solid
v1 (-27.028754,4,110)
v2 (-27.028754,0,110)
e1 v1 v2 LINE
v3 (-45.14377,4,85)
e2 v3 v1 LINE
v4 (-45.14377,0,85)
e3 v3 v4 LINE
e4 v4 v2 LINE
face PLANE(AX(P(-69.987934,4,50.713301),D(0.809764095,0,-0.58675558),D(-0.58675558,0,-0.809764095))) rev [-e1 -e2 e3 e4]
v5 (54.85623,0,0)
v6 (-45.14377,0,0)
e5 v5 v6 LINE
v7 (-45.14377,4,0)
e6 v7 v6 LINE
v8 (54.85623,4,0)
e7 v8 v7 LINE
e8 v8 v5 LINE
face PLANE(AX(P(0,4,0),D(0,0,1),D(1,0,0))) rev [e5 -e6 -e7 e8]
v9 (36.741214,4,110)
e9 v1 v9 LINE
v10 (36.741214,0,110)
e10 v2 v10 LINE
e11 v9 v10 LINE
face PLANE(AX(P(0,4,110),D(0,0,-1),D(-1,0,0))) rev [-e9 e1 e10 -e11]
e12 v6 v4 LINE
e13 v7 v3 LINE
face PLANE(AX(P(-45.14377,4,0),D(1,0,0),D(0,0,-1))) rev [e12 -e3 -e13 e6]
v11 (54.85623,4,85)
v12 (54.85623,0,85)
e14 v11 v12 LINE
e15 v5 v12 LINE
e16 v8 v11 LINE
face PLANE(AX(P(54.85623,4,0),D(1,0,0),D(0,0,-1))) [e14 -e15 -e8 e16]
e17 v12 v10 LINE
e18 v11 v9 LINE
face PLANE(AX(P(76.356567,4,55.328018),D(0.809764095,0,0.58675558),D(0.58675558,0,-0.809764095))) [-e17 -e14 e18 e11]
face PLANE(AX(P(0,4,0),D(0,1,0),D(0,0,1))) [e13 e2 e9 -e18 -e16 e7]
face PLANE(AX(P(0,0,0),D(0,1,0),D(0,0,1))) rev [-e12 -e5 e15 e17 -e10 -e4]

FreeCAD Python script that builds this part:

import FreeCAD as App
import Part
import Sketcher

V = App.Vector
Q = App.Units.Quantity

doc = App.newDocument("Part")
params = doc.addObject("Spreadsheet::Sheet", "Params")
for row, (alias, value) in enumerate([
    ("sketch1_width", "100 mm"),
    ("sketch1_height", "85 mm"),
    ("pad1_length", "4 mm"),
], start=1):
    params.set(f"A{row}", alias)
    params.set(f"B{row}", "=" + value)
    params.setAlias(f"B{row}", alias)

body = doc.addObject("PartDesign::Body", "Body")

# Sketch on XZ plane
sketch1 = body.newObject("Sketcher::SketchObject", "Sketch")
sketch1.AttachmentSupport = (doc.getObject("XZ_Plane"), [""])
sketch1.MapMode = "FlatFace"
sketch1.addGeometry([
    Part.LineSegment(V(37, 110, 0), V(55, 85, 0)),  # 0
    Part.LineSegment(V(55, 85, 0), V(55, 0, 0)),  # 1
    Part.LineSegment(V(55, 0, 0), V(-45, 0, 0)),  # 2
    Part.LineSegment(V(-45, 0, 0), V(-45, 85, 0)),  # 3
    Part.LineSegment(V(-45, 85, 0), V(-27, 110, 0)),  # 4
    Part.LineSegment(V(-27, 110, 0), V(37, 110, 0)),  # 5
], False)
sketch1.addConstraint([
    Sketcher.Constraint("Coincident", 0, 2, 1, 1),
    Sketcher.Constraint("Coincident", 1, 2, 2, 1),
    Sketcher.Constraint("Coincident", 2, 2, 3, 1),
    Sketcher.Constraint("Coincident", 3, 2, 4, 1),
    Sketcher.Constraint("Coincident", 4, 2, 5, 1),
    Sketcher.Constraint("Coincident", 5, 2, 0, 1),
    Sketcher.Constraint("Vertical", 1),
    Sketcher.Constraint("Horizontal", 2),
    Sketcher.Constraint("Vertical", 3),
    Sketcher.Constraint("Horizontal", 5),
    Sketcher.Constraint("PointOnObject", 1, 2, -1),
    Sketcher.Constraint("Horizontal", 0, 2, 3, 2),
    Sketcher.Constraint("Equal", 0, 4),
    Sketcher.Constraint("DistanceX", 2, 2, 2, 1, Q("100 mm")),
    Sketcher.Constraint("DistanceY", 1, 2, 1, 1, Q("85 mm")),
    Sketcher.Constraint("DistanceY", -1, 1, 4, 2, Q("110 mm")),
    Sketcher.Constraint("DistanceX", 5, 1, 5, 2, Q("63.769968 mm")),
    Sketcher.Constraint("DistanceX", -1, 1, 0, 2, Q("54.85623 mm")),
])
sketch1.setExpression("Constraints[13]", "Params.sketch1_width")
sketch1.setExpression("Constraints[14]", "Params.sketch1_height")
pad1 = body.newObject("PartDesign::Pad", "Pad")
pad1.Profile = sketch1
pad1.setExpression("Length", "Params.pad1_length")
pad1.Reversed = True

doc.recompute()
